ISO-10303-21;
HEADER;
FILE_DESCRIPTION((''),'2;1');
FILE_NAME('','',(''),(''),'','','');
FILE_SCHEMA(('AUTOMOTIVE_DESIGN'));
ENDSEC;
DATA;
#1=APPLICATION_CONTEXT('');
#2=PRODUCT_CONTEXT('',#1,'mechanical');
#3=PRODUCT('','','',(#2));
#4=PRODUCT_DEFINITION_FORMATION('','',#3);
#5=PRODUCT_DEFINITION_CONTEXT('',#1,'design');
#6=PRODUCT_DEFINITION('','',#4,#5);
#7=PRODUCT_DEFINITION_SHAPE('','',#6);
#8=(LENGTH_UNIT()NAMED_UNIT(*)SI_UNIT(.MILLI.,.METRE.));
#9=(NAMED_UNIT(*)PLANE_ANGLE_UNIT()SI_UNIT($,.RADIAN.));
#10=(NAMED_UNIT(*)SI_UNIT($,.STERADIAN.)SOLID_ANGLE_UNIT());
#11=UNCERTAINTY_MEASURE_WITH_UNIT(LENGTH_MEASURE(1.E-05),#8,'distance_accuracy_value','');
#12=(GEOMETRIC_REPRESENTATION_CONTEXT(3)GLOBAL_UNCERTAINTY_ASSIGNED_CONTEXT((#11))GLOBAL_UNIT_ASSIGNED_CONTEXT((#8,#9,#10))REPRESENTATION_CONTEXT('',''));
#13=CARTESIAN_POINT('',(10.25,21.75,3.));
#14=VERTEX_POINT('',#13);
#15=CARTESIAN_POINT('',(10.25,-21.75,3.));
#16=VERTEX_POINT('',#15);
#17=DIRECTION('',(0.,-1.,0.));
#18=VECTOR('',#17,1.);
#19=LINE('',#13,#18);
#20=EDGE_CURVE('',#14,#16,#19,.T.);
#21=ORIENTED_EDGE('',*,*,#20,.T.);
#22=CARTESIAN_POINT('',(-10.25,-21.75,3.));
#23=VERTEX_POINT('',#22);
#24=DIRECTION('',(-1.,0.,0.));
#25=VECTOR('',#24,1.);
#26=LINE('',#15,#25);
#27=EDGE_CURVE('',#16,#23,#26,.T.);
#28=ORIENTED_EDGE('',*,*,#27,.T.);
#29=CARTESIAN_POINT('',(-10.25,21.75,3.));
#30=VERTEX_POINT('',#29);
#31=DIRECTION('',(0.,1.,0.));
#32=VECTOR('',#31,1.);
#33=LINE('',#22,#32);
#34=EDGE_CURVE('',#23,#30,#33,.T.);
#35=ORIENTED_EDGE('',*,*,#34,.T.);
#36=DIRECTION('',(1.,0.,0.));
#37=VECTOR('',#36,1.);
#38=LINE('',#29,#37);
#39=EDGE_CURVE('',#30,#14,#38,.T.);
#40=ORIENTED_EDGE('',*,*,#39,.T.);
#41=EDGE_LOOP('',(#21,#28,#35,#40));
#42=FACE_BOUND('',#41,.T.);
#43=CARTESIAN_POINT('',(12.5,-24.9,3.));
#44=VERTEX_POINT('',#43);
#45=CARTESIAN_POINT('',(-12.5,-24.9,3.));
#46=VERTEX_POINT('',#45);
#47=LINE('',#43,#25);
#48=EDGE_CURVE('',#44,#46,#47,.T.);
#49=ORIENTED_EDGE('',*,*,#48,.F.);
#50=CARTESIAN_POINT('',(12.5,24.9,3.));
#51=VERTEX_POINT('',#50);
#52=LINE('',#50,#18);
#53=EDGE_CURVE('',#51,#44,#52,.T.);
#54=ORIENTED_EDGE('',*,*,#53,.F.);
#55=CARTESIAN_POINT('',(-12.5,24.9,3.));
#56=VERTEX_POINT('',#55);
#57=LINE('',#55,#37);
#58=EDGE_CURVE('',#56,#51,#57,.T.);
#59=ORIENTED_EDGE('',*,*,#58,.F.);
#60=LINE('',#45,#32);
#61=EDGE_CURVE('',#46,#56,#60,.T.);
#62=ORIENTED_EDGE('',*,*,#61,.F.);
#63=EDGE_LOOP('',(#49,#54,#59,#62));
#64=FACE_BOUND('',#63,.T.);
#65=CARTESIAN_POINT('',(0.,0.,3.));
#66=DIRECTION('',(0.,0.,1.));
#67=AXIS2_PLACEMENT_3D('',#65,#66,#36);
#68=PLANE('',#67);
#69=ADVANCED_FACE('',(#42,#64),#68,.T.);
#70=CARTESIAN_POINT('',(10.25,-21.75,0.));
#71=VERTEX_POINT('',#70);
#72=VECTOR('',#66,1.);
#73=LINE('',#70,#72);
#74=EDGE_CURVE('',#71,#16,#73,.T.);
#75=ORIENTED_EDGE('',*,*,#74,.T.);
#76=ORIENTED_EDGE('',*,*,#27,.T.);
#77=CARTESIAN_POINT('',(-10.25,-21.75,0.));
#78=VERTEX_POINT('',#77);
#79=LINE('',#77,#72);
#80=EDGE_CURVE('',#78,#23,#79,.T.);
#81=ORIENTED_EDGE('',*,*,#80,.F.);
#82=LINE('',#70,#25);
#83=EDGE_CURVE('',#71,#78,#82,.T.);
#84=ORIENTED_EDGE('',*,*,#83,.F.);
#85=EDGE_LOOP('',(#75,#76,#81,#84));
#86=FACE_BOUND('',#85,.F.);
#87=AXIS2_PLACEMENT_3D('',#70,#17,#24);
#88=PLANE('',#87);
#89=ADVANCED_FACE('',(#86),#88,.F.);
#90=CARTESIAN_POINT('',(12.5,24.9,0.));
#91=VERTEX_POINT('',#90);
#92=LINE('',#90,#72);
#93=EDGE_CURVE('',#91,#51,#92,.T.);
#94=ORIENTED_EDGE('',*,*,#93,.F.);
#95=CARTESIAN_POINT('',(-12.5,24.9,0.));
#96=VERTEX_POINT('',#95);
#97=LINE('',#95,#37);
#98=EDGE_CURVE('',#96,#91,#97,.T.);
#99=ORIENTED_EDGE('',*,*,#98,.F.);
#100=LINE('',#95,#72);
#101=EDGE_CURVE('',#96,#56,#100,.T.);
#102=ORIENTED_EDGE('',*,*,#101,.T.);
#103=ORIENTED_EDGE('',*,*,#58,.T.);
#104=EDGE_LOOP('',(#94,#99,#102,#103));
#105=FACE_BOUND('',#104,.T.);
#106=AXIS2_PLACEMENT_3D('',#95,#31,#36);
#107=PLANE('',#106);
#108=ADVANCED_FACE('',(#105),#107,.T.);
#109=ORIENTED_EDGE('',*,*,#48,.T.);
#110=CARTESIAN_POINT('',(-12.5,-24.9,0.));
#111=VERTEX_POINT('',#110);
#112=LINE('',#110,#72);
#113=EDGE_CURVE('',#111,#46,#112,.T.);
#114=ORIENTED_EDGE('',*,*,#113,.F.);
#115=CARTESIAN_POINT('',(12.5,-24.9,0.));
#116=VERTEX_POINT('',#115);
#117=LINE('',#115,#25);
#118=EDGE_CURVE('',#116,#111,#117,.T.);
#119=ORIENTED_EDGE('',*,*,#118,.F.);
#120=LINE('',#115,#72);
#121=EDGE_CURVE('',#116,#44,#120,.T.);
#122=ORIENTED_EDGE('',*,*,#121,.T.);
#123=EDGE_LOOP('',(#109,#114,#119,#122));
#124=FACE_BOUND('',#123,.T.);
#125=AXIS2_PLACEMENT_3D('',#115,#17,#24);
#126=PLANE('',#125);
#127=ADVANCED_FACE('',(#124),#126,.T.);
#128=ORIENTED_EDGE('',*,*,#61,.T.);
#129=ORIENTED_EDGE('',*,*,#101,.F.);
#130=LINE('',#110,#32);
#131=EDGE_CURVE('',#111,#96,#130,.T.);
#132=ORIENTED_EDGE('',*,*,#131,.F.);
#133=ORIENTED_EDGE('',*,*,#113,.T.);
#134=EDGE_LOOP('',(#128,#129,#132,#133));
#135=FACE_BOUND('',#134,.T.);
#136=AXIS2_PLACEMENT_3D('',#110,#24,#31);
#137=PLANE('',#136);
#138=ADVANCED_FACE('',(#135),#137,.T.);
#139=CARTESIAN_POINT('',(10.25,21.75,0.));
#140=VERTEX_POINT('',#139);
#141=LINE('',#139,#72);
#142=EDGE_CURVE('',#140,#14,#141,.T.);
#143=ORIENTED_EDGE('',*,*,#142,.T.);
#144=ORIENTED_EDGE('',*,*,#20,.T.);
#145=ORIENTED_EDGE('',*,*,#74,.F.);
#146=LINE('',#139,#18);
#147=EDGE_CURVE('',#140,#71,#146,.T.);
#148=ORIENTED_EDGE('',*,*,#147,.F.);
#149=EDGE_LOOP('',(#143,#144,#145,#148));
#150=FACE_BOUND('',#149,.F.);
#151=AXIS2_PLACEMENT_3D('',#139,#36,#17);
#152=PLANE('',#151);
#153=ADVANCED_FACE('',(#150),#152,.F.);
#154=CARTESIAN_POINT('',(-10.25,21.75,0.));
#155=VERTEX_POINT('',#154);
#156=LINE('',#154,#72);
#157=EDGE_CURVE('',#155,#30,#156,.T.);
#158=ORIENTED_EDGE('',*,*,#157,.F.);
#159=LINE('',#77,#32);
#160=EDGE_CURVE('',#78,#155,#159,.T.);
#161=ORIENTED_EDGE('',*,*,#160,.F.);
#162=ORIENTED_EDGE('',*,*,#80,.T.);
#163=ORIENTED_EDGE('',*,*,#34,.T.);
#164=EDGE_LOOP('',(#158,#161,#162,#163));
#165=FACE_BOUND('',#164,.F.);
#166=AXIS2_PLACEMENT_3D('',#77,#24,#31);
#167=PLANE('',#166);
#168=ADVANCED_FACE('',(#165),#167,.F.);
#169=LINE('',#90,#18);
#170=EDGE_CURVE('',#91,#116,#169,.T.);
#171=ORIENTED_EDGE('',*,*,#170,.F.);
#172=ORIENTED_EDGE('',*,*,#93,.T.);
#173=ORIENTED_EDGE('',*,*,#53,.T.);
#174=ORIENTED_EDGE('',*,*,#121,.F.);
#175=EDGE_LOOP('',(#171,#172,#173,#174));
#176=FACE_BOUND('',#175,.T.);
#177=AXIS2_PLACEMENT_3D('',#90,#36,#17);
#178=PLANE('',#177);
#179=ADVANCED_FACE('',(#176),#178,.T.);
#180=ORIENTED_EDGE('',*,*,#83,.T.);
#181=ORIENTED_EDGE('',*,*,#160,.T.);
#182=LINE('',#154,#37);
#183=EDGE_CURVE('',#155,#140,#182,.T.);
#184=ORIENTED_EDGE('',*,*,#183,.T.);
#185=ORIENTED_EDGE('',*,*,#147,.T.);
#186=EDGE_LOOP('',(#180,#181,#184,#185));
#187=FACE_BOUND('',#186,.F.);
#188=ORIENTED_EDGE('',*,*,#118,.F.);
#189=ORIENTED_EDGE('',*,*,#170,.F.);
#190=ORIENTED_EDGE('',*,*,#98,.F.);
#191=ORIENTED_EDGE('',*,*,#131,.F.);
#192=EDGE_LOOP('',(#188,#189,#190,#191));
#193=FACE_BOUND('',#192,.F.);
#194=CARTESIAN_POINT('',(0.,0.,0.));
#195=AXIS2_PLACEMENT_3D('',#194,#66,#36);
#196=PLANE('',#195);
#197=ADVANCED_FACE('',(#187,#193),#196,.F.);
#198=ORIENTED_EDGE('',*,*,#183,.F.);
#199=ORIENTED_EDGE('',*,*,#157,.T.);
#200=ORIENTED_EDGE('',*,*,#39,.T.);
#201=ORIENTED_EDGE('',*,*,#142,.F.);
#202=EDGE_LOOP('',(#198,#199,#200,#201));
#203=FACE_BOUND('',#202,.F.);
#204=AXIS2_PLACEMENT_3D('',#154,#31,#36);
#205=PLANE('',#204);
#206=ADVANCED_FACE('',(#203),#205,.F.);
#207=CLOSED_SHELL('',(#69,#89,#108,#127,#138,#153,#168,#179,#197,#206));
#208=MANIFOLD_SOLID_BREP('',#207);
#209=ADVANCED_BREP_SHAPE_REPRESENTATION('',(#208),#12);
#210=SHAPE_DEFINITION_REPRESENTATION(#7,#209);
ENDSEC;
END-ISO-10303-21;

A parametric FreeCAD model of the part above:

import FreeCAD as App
import Part
import Sketcher
from FreeCAD import Vector

doc = App.newDocument("Part")
body = doc.addObject("PartDesign::Body", "Body")

sketch1 = body.newObject("Sketcher::SketchObject", "Sketch")
sketch1.AttachmentSupport = (doc.getObject("XY_Plane"), [""])
sketch1.MapMode = "FlatFace"
sketch1.addGeometry([
    Part.LineSegment(Vector(12.5, 24.9, 0), Vector(-12.5, 24.9, 0)),
    Part.LineSegment(Vector(-12.5, 24.9, 0), Vector(-12.5, -24.9, 0)),
    Part.LineSegment(Vector(-12.5, -24.9, 0), Vector(12.5, -24.9, 0)),
    Part.LineSegment(Vector(12.5, -24.9, 0), Vector(12.5, 24.9, 0)),
    Part.LineSegment(Vector(-10.25, -21.75, 0), Vector(-10.25, 21.75, 0)),
    Part.LineSegment(Vector(-10.25, 21.75, 0), Vector(10.25, 21.75, 0)),
    Part.LineSegment(Vector(10.25, 21.75, 0), Vector(10.25, -21.75, 0)),
    Part.LineSegment(Vector(10.25, -21.75, 0), Vector(-10.25, -21.75, 0)),
], False)
sketch1.addConstraint([
    Sketcher.Constraint("Coincident", 0, 2, 1, 1),
    Sketcher.Constraint("Coincident", 1, 2, 2, 1),
    Sketcher.Constraint("Coincident", 2, 2, 3, 1),
    Sketcher.Constraint("Coincident", 3, 2, 0, 1),
    Sketcher.Constraint("Coincident", 4, 2, 5, 1),
    Sketcher.Constraint("Coincident", 5, 2, 6, 1),
    Sketcher.Constraint("Coincident", 6, 2, 7, 1),
    Sketcher.Constraint("Coincident", 7, 2, 4, 1),
    Sketcher.Constraint("Horizontal", 0),
    Sketcher.Constraint("Vertical", 1),
    Sketcher.Constraint("Horizontal", 2),
    Sketcher.Constraint("Vertical", 3),
    Sketcher.Constraint("Vertical", 4),
    Sketcher.Constraint("Horizontal", 5),
    Sketcher.Constraint("Vertical", 6),
    Sketcher.Constraint("Horizontal", 7),
    Sketcher.Constraint("Symmetric", 0, 2, 2, 2, -1, 1),
    Sketcher.Constraint("Symmetric", 4, 2, 6, 2, -1, 1),
    Sketcher.Constraint("DistanceX", 0, 2, 0, 1, 25.0),
    Sketcher.Constraint("DistanceX", 5, 1, 5, 2, 20.5),
    Sketcher.Constraint("DistanceY", 1, 2, 1, 1, 49.8),
    Sketcher.Constraint("DistanceY", 4, 1, 4, 2, 43.5),
])
pad1 = body.newObject("PartDesign::Pad", "Pad")
pad1.Profile = sketch1
pad1.Length = 3

doc.recompute()
